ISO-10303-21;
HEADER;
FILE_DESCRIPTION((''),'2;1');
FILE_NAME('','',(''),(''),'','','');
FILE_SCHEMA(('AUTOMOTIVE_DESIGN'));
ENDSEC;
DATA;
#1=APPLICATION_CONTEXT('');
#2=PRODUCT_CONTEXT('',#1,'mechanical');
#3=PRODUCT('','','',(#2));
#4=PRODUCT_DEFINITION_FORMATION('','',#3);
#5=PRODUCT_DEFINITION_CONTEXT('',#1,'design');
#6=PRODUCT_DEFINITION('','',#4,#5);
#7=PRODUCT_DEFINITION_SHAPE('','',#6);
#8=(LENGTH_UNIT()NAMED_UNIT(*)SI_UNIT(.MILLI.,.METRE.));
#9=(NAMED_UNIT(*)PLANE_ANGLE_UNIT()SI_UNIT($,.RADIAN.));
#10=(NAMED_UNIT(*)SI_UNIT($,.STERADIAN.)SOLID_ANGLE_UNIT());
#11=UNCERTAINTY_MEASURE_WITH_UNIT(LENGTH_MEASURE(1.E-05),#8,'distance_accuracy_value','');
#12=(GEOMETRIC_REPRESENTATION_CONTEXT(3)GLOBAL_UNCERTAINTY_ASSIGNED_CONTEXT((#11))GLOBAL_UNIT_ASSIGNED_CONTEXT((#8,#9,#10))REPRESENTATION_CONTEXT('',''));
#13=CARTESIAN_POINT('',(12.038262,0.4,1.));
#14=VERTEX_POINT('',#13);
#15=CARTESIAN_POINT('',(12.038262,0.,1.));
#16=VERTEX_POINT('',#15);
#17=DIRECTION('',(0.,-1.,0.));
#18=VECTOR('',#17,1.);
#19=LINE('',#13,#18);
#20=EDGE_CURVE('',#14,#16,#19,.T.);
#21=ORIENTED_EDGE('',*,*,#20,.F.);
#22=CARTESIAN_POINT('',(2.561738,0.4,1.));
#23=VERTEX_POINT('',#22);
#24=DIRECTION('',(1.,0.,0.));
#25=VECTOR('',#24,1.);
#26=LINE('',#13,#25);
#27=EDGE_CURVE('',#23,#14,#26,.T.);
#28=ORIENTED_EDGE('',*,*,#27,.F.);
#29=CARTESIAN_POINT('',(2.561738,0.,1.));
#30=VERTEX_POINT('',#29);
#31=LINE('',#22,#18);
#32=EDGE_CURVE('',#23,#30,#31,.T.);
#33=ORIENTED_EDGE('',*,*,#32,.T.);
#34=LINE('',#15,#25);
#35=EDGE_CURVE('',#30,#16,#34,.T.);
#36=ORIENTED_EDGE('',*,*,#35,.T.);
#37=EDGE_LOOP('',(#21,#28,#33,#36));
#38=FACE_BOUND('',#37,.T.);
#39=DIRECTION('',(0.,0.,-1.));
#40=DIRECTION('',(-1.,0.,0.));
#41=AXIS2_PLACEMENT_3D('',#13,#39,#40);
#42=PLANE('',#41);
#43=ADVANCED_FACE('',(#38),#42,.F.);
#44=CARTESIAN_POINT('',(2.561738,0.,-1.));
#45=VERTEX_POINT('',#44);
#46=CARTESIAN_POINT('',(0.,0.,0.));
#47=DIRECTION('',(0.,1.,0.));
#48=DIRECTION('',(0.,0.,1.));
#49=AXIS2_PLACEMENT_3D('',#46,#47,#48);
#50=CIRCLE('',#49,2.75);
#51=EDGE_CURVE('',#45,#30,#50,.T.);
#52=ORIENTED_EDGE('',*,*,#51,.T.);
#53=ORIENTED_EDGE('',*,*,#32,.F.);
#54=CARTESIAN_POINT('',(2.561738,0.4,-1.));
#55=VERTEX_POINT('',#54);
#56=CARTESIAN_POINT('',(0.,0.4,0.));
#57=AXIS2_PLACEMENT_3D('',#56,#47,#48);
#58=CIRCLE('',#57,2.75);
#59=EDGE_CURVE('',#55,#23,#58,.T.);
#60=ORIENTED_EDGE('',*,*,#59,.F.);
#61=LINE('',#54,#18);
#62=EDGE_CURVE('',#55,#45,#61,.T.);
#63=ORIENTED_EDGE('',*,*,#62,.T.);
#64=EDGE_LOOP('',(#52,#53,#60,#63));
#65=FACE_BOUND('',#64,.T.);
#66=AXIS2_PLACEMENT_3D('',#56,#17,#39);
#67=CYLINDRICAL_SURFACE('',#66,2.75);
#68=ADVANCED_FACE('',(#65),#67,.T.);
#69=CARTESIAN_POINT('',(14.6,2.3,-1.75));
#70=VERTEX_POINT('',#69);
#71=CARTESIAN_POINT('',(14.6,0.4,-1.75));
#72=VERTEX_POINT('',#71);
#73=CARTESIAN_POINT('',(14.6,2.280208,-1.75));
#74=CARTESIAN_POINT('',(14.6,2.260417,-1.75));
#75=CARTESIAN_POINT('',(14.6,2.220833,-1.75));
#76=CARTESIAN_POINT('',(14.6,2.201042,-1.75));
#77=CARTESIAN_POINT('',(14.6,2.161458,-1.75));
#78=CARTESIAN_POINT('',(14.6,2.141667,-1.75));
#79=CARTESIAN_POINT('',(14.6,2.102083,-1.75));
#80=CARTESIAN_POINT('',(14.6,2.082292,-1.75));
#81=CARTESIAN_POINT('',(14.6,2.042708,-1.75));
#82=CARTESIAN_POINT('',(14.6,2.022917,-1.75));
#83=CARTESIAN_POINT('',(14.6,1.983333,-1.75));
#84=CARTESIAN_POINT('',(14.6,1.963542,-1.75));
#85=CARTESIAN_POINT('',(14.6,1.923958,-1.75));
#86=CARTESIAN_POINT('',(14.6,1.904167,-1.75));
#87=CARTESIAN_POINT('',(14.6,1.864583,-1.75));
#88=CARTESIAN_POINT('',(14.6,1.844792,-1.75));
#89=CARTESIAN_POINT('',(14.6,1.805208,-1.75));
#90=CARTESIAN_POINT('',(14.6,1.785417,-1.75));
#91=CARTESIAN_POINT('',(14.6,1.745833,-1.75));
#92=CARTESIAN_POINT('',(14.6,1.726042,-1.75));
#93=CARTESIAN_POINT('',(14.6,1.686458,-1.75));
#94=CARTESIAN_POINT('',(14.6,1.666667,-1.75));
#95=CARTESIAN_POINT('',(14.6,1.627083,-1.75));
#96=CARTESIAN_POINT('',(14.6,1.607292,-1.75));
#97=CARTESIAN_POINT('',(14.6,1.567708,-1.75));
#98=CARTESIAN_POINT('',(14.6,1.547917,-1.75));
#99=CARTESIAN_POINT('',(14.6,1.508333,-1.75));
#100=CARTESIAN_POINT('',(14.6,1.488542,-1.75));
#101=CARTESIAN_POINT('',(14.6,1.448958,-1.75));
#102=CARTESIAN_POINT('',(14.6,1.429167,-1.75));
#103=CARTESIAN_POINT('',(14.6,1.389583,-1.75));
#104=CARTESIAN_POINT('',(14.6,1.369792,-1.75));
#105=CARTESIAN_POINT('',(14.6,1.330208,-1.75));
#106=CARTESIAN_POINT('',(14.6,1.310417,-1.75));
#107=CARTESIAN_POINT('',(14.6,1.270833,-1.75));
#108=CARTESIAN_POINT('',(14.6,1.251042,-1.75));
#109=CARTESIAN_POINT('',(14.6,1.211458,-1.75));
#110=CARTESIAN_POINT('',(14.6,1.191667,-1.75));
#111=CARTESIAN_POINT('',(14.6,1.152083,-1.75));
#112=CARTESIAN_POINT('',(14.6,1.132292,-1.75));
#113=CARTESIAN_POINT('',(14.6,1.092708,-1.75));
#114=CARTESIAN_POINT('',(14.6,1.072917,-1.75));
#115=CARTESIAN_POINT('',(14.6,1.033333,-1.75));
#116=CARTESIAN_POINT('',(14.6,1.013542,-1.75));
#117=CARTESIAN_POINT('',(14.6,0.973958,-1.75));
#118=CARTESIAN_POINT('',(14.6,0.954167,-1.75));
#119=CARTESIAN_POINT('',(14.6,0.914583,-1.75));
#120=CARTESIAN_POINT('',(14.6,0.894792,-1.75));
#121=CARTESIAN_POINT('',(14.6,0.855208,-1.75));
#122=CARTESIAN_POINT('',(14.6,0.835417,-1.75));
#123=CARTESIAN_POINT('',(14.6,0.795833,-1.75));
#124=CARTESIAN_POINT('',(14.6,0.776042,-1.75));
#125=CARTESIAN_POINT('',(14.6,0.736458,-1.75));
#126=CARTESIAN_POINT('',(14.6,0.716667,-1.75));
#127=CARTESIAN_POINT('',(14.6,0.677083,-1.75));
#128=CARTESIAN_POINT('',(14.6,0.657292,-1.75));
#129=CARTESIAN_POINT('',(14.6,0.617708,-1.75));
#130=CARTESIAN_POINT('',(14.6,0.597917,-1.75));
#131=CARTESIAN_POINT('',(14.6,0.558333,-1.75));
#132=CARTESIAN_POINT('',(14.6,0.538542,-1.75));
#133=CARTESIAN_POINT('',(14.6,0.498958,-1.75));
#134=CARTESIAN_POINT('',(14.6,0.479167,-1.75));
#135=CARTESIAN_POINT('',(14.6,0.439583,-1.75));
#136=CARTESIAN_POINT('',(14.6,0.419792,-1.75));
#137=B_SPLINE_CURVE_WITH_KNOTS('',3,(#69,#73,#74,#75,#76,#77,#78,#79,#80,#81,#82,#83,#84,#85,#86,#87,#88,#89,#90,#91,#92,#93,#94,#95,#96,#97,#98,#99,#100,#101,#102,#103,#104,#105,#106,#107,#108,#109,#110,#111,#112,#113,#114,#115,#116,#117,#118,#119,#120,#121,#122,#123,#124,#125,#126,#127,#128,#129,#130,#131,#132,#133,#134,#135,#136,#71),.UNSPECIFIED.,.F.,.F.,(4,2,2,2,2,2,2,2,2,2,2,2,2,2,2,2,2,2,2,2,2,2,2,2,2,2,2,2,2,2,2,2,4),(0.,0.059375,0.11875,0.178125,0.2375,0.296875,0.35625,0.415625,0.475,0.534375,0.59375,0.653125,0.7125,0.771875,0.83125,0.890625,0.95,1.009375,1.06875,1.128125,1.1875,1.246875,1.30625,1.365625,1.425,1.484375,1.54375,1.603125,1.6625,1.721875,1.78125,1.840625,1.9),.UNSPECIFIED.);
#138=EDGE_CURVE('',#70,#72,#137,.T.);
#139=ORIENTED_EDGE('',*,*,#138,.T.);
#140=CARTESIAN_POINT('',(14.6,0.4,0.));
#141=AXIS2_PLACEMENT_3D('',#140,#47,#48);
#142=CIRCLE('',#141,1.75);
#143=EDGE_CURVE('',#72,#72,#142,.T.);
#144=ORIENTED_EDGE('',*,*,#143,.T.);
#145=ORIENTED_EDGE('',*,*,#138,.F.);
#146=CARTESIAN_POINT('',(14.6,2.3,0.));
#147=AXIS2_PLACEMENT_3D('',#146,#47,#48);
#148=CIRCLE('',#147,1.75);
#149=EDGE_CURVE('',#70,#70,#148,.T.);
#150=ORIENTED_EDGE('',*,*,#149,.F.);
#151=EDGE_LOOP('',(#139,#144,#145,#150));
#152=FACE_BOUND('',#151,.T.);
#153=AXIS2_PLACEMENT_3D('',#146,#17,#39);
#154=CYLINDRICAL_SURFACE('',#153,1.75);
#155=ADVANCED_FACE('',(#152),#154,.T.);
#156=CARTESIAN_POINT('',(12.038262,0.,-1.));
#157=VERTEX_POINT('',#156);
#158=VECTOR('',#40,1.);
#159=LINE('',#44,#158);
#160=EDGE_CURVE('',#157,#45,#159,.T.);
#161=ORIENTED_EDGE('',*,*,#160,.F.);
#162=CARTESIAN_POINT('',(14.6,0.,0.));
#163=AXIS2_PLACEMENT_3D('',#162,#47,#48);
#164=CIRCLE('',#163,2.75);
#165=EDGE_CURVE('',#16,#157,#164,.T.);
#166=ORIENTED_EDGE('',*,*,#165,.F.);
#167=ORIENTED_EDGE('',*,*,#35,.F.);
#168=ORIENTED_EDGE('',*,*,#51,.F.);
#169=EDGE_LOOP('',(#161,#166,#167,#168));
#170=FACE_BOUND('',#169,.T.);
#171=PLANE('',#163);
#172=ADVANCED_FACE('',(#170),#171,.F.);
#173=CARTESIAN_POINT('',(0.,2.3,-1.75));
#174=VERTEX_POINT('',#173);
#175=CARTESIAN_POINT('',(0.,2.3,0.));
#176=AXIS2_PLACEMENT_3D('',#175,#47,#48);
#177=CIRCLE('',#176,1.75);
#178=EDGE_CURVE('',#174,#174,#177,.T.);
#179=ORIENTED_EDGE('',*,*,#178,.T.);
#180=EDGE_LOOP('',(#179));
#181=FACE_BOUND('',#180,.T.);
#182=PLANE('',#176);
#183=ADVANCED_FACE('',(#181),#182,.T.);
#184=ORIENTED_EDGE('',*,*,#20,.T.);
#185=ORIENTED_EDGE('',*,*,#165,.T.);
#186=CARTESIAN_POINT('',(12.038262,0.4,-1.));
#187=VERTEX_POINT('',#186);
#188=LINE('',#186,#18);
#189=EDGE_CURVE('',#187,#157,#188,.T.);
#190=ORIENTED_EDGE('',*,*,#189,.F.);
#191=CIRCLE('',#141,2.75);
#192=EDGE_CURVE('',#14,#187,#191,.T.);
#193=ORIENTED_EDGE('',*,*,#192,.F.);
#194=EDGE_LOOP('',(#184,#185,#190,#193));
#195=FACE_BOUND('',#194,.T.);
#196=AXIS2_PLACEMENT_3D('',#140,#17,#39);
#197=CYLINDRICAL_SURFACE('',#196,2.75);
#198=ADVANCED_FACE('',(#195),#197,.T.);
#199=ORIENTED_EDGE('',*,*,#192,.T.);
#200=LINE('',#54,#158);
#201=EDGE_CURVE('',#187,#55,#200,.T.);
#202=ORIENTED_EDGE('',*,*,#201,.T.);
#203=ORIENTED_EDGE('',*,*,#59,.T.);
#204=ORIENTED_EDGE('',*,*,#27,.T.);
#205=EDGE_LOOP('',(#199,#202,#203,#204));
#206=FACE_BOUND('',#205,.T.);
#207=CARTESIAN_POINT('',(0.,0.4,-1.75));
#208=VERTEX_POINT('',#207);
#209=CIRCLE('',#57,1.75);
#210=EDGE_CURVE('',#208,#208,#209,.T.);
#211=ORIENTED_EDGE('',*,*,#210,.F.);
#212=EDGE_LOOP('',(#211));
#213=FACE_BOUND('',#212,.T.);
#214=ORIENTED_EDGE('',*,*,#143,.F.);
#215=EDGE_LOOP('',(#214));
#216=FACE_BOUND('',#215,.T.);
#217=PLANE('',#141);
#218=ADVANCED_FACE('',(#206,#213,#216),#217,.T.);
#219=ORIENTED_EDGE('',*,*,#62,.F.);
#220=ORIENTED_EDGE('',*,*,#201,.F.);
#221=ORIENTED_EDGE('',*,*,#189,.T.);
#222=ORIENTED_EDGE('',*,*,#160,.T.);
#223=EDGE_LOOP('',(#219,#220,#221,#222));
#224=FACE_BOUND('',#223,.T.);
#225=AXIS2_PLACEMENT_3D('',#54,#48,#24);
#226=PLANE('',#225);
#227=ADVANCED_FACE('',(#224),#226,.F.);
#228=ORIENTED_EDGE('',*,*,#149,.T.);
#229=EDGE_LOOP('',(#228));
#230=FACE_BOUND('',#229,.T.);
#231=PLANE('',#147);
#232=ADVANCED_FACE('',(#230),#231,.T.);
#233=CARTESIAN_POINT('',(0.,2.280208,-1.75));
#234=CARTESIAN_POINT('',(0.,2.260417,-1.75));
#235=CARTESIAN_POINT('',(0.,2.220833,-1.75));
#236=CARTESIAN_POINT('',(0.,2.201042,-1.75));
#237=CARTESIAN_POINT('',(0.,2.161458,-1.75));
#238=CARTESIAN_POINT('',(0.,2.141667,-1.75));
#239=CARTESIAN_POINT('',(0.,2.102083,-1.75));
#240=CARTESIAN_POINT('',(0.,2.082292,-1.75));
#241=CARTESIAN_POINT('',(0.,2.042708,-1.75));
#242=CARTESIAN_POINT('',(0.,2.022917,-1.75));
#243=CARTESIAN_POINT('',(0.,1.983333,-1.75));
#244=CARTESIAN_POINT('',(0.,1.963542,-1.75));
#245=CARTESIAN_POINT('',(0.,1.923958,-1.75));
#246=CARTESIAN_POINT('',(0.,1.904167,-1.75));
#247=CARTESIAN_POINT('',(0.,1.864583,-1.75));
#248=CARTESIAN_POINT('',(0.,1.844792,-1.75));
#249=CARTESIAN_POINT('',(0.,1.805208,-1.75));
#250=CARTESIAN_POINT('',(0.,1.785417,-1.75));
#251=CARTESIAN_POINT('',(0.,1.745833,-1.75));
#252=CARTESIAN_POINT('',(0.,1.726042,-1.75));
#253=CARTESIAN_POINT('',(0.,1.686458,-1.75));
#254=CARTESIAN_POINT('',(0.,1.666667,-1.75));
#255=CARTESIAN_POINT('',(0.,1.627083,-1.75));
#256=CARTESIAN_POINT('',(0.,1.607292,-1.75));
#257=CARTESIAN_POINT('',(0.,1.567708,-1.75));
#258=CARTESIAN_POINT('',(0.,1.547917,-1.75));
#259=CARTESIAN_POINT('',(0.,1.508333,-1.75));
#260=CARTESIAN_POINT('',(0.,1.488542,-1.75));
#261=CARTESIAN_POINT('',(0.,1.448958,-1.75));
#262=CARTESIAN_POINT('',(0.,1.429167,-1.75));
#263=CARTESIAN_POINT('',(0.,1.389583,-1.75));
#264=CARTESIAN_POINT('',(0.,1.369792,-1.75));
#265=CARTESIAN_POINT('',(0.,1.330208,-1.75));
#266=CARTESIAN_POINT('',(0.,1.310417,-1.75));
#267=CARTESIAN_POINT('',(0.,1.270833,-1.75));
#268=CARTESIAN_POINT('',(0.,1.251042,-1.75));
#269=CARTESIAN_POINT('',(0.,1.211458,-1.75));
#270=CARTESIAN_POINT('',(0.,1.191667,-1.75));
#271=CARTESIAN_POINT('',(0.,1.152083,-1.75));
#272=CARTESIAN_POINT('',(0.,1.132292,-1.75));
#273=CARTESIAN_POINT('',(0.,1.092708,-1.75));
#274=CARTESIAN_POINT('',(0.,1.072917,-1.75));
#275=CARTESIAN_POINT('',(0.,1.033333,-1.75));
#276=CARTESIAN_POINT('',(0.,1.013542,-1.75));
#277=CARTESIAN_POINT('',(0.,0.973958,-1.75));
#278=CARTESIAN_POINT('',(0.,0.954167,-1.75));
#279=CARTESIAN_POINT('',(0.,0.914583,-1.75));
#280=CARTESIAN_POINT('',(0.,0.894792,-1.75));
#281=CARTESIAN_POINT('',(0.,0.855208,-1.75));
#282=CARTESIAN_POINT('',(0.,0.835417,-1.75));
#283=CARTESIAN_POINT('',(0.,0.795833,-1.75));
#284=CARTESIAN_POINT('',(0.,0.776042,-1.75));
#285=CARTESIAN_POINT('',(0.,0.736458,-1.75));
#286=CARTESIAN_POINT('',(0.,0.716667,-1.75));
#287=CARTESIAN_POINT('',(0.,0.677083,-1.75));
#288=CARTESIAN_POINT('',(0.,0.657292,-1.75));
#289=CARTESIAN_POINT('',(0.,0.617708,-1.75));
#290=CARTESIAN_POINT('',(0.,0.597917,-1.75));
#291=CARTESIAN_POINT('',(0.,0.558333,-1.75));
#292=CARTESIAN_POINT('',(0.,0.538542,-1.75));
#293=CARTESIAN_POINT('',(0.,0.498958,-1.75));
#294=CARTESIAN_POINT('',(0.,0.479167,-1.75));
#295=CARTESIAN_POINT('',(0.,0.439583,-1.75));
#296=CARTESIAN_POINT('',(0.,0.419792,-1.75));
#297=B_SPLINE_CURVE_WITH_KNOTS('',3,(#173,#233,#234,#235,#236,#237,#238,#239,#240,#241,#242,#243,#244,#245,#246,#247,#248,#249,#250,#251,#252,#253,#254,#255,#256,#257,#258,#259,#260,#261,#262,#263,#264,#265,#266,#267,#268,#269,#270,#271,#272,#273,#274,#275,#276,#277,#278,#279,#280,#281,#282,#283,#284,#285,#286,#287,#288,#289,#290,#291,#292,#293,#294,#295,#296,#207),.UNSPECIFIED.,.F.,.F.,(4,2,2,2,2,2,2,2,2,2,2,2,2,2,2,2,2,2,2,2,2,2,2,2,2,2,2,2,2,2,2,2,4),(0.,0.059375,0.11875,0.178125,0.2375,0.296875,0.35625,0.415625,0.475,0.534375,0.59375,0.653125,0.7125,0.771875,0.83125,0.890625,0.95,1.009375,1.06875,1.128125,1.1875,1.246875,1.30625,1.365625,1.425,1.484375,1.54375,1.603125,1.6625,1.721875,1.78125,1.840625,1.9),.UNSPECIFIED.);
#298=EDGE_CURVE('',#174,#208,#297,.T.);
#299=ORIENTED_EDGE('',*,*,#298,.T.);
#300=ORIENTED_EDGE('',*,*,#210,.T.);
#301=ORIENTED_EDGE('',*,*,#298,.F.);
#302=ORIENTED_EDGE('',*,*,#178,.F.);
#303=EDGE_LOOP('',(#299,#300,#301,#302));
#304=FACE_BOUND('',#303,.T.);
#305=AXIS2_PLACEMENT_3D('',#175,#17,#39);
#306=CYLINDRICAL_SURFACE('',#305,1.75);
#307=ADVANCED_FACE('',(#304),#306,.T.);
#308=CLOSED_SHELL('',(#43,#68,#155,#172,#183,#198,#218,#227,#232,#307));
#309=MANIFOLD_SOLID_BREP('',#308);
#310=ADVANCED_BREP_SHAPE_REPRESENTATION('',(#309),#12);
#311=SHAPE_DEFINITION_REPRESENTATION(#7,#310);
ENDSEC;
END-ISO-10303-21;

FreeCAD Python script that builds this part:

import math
import FreeCAD as App
import Part
import Sketcher

doc = App.newDocument("Part")
body = doc.addObject("PartDesign::Body", "Body")

sketch1 = doc.addObject("Sketcher::SketchObject", "Sketch")
body.addObject(sketch1)
sketch1.AttachmentSupport = (doc.XZ_Plane, [""])
sketch1.MapMode = "FlatFace"
sketch1.addGeometry([
    Part.LineSegment(App.Vector(12, -1, 0), App.Vector(2.6, -1, 0)),
    Part.ArcOfCircle(Part.Circle(App.Vector(0, 0, 0), App.Vector(0, 0, 1), 2.8), math.radians(21), math.radians(339)),
    Part.LineSegment(App.Vector(2.6, 1, 0), App.Vector(12, 1, 0)),
    Part.ArcOfCircle(Part.Circle(App.Vector(14.6, 0, 0), App.Vector(0, 0, 1), 2.8), math.radians(-159), math.radians(159)),
], False)
sketch1.addConstraint([
    Sketcher.Constraint("Coincident", 0, 2, 1, 2),
    Sketcher.Constraint("Coincident", 1, 1, 2, 1),
    Sketcher.Constraint("Coincident", 2, 2, 3, 2),
    Sketcher.Constraint("Coincident", 3, 1, 0, 1),
    Sketcher.Constraint("Horizontal", 0),
    Sketcher.Constraint("Horizontal", 2),
    Sketcher.Constraint("Coincident", 1, 3, -1, 1),
    Sketcher.Constraint("Equal", 1, 3),
    Sketcher.Constraint("Symmetric", 2, 2, 3, 1, -1),
    Sketcher.Constraint("Radius", 1, 2.75),
    Sketcher.Constraint("DistanceY", 0, 2, -1, 1, 1.0),
    Sketcher.Constraint("DistanceX", -1, 1, 3, 3, 14.6),
])
pad1 = doc.addObject("PartDesign::Pad", "Pad")
body.addObject(pad1)
pad1.Profile = sketch1
pad1.Length = 0.4
pad1.Reversed = True

sketch2 = doc.addObject("Sketcher::SketchObject", "Sketch001")
body.addObject(sketch2)
sketch2.AttachmentSupport = (doc.XZ_Plane, [""])
sketch2.MapMode = "FlatFace"
sketch2.AttachmentOffset = App.Placement(App.Vector(0, 0, -0.4), App.Rotation())
sketch2.addGeometry([
    Part.Circle(App.Vector(0, 0, 0), App.Vector(0, 0, 1), 1.8),
    Part.Circle(App.Vector(14.6, 0, 0), App.Vector(0, 0, 1), 1.8),
], False)
sketch2.addConstraint([
    Sketcher.Constraint("Coincident", 0, 3, -1, 1),
    Sketcher.Constraint("Equal", 0, 1),
    Sketcher.Constraint("PointOnObject", 1, 3, -1),
    Sketcher.Constraint("Diameter", 0, 3.5),
    Sketcher.Constraint("DistanceX", -1, 1, 1, 3, 14.6),
])
pad2 = doc.addObject("PartDesign::Pad", "Pad001")
body.addObject(pad2)
pad2.Profile = sketch2
pad2.Length = 1.9
pad2.Reversed = True

doc.recompute()
